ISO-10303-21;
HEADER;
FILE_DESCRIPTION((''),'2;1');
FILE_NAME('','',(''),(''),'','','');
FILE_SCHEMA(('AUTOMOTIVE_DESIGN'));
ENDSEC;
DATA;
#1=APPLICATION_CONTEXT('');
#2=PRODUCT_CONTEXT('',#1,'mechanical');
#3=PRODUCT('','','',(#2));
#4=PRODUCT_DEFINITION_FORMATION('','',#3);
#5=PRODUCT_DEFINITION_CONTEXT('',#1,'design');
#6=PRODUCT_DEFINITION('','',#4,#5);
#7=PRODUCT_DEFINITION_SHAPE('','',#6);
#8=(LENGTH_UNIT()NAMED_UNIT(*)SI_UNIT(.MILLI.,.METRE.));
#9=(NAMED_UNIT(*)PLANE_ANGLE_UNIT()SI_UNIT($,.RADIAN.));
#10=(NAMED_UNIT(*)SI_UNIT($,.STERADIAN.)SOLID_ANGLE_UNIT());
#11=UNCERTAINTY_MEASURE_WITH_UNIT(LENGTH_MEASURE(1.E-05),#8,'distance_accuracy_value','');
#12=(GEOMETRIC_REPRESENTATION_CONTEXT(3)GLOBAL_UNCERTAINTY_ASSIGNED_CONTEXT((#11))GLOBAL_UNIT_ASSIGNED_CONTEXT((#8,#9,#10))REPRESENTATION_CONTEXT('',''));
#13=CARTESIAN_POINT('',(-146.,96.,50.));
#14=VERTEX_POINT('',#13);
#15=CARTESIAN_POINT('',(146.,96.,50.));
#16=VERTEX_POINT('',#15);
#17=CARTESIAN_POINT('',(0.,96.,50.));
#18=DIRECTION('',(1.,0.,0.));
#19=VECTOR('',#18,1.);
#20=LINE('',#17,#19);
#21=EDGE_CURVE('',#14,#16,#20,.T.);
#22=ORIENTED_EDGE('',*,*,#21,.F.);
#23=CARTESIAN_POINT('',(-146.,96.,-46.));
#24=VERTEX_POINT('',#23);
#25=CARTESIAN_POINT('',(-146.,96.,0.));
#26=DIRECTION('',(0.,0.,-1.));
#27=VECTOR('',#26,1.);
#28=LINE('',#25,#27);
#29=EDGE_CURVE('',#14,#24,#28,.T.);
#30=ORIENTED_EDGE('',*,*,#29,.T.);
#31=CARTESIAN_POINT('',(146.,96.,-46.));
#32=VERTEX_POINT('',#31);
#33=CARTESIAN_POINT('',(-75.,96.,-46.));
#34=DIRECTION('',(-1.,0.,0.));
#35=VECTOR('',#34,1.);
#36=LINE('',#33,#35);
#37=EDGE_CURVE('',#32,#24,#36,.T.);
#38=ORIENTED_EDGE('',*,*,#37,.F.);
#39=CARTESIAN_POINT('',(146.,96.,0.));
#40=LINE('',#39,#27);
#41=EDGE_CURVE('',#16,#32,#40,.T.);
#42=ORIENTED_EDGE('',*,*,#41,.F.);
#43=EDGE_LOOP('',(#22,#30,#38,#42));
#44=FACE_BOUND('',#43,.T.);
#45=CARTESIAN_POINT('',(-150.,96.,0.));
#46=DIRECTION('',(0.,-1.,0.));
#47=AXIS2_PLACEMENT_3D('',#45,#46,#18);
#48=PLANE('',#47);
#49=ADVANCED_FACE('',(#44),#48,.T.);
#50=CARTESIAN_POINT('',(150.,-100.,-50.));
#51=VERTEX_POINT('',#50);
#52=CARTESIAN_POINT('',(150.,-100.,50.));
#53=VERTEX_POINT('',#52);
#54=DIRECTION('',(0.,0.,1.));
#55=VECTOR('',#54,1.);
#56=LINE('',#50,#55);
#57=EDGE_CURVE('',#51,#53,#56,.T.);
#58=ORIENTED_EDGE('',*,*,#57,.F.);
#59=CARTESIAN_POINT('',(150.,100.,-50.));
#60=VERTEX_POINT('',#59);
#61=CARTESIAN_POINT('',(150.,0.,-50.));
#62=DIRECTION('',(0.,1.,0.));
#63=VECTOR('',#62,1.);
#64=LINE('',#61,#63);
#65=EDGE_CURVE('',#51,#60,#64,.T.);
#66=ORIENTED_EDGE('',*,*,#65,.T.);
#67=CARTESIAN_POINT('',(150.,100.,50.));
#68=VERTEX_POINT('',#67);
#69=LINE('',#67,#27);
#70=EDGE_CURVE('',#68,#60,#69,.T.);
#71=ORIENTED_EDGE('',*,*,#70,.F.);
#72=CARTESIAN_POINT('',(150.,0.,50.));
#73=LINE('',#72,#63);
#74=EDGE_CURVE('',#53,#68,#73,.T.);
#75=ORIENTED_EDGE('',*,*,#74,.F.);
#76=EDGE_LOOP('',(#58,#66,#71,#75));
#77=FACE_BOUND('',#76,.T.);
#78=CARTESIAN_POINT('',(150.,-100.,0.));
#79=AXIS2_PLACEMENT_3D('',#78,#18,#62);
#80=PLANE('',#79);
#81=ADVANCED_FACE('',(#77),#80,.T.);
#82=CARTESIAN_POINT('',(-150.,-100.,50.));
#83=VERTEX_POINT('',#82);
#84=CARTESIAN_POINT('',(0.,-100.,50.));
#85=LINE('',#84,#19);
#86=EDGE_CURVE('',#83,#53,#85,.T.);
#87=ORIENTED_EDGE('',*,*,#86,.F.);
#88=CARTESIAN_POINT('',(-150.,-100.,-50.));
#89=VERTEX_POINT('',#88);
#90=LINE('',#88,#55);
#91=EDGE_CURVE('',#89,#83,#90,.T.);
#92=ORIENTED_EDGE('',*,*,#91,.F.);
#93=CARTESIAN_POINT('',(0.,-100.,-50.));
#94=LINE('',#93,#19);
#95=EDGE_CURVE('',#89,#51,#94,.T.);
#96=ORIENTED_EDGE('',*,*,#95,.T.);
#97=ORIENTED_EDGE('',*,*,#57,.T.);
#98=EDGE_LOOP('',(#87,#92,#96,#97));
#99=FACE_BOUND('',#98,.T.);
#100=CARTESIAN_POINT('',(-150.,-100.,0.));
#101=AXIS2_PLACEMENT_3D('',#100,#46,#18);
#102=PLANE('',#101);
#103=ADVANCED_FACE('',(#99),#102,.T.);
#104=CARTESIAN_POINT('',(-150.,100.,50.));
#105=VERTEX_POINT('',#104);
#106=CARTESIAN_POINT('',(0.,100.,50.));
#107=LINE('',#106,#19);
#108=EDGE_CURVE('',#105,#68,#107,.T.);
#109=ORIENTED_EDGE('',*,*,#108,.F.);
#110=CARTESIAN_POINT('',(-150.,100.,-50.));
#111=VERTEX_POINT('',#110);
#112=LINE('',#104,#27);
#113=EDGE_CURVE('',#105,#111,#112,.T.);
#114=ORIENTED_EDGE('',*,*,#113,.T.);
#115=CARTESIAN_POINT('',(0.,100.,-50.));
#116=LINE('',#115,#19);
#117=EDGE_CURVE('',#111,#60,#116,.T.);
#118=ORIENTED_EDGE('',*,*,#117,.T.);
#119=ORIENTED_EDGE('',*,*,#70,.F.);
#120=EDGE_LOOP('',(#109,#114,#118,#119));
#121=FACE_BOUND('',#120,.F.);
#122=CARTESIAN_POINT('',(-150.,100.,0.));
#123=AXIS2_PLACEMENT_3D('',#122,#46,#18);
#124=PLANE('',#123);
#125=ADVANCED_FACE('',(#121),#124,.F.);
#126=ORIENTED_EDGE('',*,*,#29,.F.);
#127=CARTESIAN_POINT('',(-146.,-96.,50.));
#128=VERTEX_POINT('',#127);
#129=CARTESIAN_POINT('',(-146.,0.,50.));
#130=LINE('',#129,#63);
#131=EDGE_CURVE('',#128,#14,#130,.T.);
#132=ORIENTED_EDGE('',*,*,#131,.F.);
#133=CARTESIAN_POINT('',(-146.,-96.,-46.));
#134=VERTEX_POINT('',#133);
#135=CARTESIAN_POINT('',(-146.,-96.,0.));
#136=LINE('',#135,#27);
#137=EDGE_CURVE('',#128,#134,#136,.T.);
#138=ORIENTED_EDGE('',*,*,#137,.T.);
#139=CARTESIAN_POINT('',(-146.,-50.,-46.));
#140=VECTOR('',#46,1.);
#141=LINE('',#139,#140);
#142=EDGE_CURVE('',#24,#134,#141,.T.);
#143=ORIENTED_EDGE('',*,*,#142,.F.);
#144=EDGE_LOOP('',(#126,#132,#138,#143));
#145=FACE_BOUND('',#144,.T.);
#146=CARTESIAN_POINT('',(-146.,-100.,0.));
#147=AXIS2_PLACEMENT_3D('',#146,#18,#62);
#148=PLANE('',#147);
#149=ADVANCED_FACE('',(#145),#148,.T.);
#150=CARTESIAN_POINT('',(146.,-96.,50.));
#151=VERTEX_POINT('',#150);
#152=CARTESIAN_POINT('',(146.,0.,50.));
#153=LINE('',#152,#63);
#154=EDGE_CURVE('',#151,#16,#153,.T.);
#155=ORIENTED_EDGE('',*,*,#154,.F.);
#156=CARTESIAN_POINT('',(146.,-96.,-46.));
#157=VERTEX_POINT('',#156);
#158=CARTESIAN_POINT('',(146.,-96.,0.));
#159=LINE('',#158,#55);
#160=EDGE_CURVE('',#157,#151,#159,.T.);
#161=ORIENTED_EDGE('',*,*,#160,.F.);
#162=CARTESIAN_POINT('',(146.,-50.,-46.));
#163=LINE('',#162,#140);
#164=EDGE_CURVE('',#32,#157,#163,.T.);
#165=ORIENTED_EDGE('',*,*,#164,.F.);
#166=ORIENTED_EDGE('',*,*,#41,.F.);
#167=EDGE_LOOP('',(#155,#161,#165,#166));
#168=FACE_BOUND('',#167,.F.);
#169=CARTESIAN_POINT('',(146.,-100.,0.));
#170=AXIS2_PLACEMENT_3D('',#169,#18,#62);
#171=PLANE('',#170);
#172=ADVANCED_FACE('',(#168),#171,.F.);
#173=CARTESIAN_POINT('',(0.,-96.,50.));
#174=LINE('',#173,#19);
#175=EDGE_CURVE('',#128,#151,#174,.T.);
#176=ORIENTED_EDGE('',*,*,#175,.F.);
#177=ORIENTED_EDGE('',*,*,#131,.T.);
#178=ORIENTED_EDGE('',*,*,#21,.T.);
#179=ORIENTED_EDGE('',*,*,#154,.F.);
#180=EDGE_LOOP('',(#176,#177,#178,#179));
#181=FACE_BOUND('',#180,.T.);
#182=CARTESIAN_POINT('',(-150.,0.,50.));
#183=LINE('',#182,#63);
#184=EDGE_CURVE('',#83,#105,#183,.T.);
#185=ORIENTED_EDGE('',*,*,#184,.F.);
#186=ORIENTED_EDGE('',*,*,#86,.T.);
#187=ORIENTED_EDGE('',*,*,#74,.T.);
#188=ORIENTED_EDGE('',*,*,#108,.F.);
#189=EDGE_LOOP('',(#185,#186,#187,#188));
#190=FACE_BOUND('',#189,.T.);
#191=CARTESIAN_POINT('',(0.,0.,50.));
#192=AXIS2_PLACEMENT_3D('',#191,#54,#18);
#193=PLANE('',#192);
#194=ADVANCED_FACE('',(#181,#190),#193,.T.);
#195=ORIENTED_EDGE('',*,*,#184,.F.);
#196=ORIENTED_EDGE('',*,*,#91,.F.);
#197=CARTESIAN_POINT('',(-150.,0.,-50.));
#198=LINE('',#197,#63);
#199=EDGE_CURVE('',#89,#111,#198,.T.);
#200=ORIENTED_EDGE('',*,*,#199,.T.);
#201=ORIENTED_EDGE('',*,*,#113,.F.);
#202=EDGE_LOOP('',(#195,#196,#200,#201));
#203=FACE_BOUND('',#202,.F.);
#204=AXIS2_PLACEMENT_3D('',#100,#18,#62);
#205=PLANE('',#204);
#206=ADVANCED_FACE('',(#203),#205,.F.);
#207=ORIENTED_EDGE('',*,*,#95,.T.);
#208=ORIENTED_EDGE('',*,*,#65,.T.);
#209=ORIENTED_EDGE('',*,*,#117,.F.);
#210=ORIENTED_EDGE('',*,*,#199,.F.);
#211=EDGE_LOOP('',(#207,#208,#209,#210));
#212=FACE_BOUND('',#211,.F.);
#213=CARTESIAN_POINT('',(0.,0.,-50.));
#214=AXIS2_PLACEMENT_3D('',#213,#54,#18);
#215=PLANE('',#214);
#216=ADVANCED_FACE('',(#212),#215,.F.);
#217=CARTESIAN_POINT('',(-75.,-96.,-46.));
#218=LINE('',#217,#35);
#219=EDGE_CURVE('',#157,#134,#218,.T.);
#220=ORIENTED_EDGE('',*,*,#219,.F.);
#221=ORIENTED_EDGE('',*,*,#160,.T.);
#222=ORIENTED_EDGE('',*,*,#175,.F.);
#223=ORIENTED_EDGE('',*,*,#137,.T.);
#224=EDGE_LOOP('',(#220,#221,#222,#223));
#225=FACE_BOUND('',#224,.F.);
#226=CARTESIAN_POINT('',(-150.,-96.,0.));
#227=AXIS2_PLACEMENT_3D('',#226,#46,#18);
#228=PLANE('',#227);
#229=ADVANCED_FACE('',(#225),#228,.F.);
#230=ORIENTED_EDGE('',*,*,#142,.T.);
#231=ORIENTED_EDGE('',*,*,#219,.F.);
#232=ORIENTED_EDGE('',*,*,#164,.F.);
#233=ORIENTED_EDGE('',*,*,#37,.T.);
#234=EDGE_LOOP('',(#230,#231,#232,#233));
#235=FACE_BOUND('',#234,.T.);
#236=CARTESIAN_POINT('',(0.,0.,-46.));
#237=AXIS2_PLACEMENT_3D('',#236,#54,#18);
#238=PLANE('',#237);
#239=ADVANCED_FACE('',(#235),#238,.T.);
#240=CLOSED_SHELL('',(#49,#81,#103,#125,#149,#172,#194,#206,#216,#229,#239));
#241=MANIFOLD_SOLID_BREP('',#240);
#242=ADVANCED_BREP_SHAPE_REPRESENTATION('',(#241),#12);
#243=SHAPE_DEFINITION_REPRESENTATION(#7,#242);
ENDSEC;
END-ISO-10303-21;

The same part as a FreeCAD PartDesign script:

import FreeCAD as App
import Part
import Sketcher
from FreeCAD import Vector


def faces_at(feature, points):
    """Names of the faces that lie closest to the given points."""
    faces = feature.Shape.Faces
    near = lambda p: min(range(len(faces)), key=lambda i: faces[i].distToShape(Part.Vertex(*p))[0])
    return sorted({f"Face{near(p) + 1}" for p in points})

doc = App.newDocument("Part")
body = doc.addObject("PartDesign::Body", "Body")

sketch1 = body.newObject("Sketcher::SketchObject", "Sketch")
sketch1.AttachmentSupport = (doc.getObject("XY_Plane"), [""])
sketch1.MapMode = "FlatFace"
sketch1.addGeometry([
    Part.LineSegment(Vector(-150, 100, 0), Vector(-150, -100, 0)),
    Part.LineSegment(Vector(-150, -100, 0), Vector(150, -100, 0)),
    Part.LineSegment(Vector(150, -100, 0), Vector(150, 100, 0)),
    Part.LineSegment(Vector(150, 100, 0), Vector(-150, 100, 0)),
], False)
sketch1.addConstraint([
    Sketcher.Constraint("Coincident", 0, 2, 1, 1),
    Sketcher.Constraint("Coincident", 1, 2, 2, 1),
    Sketcher.Constraint("Coincident", 2, 2, 3, 1),
    Sketcher.Constraint("Coincident", 3, 2, 0, 1),
    Sketcher.Constraint("Vertical", 0),
    Sketcher.Constraint("Horizontal", 1),
    Sketcher.Constraint("Vertical", 2),
    Sketcher.Constraint("Horizontal", 3),
    Sketcher.Constraint("Symmetric", 0, 2, 2, 2, -1, 1),
    Sketcher.Constraint("DistanceX", 1, 1, 1, 2, 300.0),
    Sketcher.Constraint("DistanceY", 0, 2, 0, 1, 200.0),
])
pad1 = body.newObject("PartDesign::Pad", "Pad")
pad1.Profile = sketch1
pad1.Length = 100
pad1.Midplane = True
doc.recompute()

thickness = body.newObject("PartDesign::Thickness", "Thickness")
thickness.Base = (pad1, faces_at(pad1, [(0, 0, 50)]))
thickness.Value = 4
thickness.Reversed = True
thickness.Join = "Arc"

doc.recompute()
